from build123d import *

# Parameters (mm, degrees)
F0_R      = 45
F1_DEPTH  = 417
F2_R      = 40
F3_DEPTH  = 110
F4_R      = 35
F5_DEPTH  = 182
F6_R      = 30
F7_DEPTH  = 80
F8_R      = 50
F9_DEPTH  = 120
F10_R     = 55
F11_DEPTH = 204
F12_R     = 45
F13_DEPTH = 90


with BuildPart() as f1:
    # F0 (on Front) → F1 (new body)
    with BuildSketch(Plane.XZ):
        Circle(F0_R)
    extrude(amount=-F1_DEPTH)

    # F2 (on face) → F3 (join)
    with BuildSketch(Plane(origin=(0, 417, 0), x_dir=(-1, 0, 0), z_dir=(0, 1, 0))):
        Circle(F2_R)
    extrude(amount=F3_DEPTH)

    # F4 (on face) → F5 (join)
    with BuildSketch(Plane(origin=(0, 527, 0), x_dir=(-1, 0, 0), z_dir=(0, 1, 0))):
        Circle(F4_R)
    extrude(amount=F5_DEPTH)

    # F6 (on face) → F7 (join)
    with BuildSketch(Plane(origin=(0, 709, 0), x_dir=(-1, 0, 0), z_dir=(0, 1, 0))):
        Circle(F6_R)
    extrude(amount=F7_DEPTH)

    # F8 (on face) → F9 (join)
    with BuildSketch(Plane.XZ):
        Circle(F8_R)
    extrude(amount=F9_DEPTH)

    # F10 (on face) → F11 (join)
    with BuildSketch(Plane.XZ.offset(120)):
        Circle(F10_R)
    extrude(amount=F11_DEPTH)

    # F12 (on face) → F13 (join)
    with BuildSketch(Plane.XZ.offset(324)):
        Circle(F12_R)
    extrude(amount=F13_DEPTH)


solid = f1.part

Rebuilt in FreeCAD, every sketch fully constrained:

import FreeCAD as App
import Part
import Sketcher

V = App.Vector
Q = App.Units.Quantity

doc = App.newDocument("Part")
body = doc.addObject("PartDesign::Body", "Body")

sketch1 = body.newObject("Sketcher::SketchObject", "Sketch")
sketch1.AttachmentSupport = (doc.getObject("XZ_Plane"), [""])
sketch1.MapMode = "FlatFace"
sketch1.addGeometry(Part.Circle(V(0, 0, 0), V(0, 0, 1), 45), False)
sketch1.addConstraint([
    Sketcher.Constraint("Coincident", 0, 3, -1, 1),
    Sketcher.Constraint("Diameter", 0, Q("90 mm")),
])
pad1 = body.newObject("PartDesign::Pad", "Pad")
pad1.Profile = sketch1
pad1.Length = 417
pad1.Reversed = True

sketch2 = body.newObject("Sketcher::SketchObject", "Sketch001")
sketch2.AttachmentSupport = (doc.getObject("XZ_Plane"), [""])
sketch2.MapMode = "FlatFace"
sketch2.AttachmentOffset = App.Placement(V(0, 0, -417), App.Rotation())
sketch2.addGeometry(Part.Circle(V(0, 0, 0), V(0, 0, 1), 40), False)
sketch2.addConstraint([
    Sketcher.Constraint("Coincident", 0, 3, -1, 1),
    Sketcher.Constraint("Diameter", 0, Q("80 mm")),
])
pad2 = body.newObject("PartDesign::Pad", "Pad001")
pad2.Profile = sketch2
pad2.Length = 110
pad2.Reversed = True

sketch3 = body.newObject("Sketcher::SketchObject", "Sketch002")
sketch3.AttachmentSupport = (doc.getObject("XZ_Plane"), [""])
sketch3.MapMode = "FlatFace"
sketch3.AttachmentOffset = App.Placement(V(0, 0, -527), App.Rotation())
sketch3.addGeometry(Part.Circle(V(0, 0, 0), V(0, 0, 1), 35), False)
sketch3.addConstraint([
    Sketcher.Constraint("Coincident", 0, 3, -1, 1),
    Sketcher.Constraint("Diameter", 0, Q("70 mm")),
])
pad3 = body.newObject("PartDesign::Pad", "Pad002")
pad3.Profile = sketch3
pad3.Length = 182
pad3.Reversed = True

sketch4 = body.newObject("Sketcher::SketchObject", "Sketch003")
sketch4.AttachmentSupport = (doc.getObject("XZ_Plane"), [""])
sketch4.MapMode = "FlatFace"
sketch4.AttachmentOffset = App.Placement(V(0, 0, -709), App.Rotation())
sketch4.addGeometry(Part.Circle(V(0, 0, 0), V(0, 0, 1), 30), False)
sketch4.addConstraint([
    Sketcher.Constraint("Coincident", 0, 3, -1, 1),
    Sketcher.Constraint("Diameter", 0, Q("60 mm")),
])
pad4 = body.newObject("PartDesign::Pad", "Pad003")
pad4.Profile = sketch4
pad4.Length = 80
pad4.Reversed = True

sketch5 = body.newObject("Sketcher::SketchObject", "Sketch004")
sketch5.AttachmentSupport = (doc.getObject("XZ_Plane"), [""])
sketch5.MapMode = "FlatFace"
sketch5.addGeometry(Part.Circle(V(0, 0, 0), V(0, 0, 1), 50), False)
sketch5.addConstraint([
    Sketcher.Constraint("Coincident", 0, 3, -1, 1),
    Sketcher.Constraint("Diameter", 0, Q("100 mm")),
])
pad5 = body.newObject("PartDesign::Pad", "Pad004")
pad5.Profile = sketch5
pad5.Length = 120

sketch6 = body.newObject("Sketcher::SketchObject", "Sketch005")
sketch6.AttachmentSupport = (doc.getObject("XZ_Plane"), [""])
sketch6.MapMode = "FlatFace"
sketch6.AttachmentOffset = App.Placement(V(0, 0, 120), App.Rotation())
sketch6.addGeometry(Part.Circle(V(0, 0, 0), V(0, 0, 1), 55), False)
sketch6.addConstraint([
    Sketcher.Constraint("Coincident", 0, 3, -1, 1),
    Sketcher.Constraint("Diameter", 0, Q("110 mm")),
])
pad6 = body.newObject("PartDesign::Pad", "Pad005")
pad6.Profile = sketch6
pad6.Length = 204

sketch7 = body.newObject("Sketcher::SketchObject", "Sketch006")
sketch7.AttachmentSupport = (doc.getObject("XZ_Plane"), [""])
sketch7.MapMode = "FlatFace"
sketch7.AttachmentOffset = App.Placement(V(0, 0, 324), App.Rotation())
sketch7.addGeometry(Part.Circle(V(0, 0, 0), V(0, 0, 1), 45), False)
sketch7.addConstraint([
    Sketcher.Constraint("Coincident", 0, 3, -1, 1),
    Sketcher.Constraint("Diameter", 0, Q("90 mm")),
])
pad7 = body.newObject("PartDesign::Pad", "Pad006")
pad7.Profile = sketch7
pad7.Length = 90

doc.recompute()
